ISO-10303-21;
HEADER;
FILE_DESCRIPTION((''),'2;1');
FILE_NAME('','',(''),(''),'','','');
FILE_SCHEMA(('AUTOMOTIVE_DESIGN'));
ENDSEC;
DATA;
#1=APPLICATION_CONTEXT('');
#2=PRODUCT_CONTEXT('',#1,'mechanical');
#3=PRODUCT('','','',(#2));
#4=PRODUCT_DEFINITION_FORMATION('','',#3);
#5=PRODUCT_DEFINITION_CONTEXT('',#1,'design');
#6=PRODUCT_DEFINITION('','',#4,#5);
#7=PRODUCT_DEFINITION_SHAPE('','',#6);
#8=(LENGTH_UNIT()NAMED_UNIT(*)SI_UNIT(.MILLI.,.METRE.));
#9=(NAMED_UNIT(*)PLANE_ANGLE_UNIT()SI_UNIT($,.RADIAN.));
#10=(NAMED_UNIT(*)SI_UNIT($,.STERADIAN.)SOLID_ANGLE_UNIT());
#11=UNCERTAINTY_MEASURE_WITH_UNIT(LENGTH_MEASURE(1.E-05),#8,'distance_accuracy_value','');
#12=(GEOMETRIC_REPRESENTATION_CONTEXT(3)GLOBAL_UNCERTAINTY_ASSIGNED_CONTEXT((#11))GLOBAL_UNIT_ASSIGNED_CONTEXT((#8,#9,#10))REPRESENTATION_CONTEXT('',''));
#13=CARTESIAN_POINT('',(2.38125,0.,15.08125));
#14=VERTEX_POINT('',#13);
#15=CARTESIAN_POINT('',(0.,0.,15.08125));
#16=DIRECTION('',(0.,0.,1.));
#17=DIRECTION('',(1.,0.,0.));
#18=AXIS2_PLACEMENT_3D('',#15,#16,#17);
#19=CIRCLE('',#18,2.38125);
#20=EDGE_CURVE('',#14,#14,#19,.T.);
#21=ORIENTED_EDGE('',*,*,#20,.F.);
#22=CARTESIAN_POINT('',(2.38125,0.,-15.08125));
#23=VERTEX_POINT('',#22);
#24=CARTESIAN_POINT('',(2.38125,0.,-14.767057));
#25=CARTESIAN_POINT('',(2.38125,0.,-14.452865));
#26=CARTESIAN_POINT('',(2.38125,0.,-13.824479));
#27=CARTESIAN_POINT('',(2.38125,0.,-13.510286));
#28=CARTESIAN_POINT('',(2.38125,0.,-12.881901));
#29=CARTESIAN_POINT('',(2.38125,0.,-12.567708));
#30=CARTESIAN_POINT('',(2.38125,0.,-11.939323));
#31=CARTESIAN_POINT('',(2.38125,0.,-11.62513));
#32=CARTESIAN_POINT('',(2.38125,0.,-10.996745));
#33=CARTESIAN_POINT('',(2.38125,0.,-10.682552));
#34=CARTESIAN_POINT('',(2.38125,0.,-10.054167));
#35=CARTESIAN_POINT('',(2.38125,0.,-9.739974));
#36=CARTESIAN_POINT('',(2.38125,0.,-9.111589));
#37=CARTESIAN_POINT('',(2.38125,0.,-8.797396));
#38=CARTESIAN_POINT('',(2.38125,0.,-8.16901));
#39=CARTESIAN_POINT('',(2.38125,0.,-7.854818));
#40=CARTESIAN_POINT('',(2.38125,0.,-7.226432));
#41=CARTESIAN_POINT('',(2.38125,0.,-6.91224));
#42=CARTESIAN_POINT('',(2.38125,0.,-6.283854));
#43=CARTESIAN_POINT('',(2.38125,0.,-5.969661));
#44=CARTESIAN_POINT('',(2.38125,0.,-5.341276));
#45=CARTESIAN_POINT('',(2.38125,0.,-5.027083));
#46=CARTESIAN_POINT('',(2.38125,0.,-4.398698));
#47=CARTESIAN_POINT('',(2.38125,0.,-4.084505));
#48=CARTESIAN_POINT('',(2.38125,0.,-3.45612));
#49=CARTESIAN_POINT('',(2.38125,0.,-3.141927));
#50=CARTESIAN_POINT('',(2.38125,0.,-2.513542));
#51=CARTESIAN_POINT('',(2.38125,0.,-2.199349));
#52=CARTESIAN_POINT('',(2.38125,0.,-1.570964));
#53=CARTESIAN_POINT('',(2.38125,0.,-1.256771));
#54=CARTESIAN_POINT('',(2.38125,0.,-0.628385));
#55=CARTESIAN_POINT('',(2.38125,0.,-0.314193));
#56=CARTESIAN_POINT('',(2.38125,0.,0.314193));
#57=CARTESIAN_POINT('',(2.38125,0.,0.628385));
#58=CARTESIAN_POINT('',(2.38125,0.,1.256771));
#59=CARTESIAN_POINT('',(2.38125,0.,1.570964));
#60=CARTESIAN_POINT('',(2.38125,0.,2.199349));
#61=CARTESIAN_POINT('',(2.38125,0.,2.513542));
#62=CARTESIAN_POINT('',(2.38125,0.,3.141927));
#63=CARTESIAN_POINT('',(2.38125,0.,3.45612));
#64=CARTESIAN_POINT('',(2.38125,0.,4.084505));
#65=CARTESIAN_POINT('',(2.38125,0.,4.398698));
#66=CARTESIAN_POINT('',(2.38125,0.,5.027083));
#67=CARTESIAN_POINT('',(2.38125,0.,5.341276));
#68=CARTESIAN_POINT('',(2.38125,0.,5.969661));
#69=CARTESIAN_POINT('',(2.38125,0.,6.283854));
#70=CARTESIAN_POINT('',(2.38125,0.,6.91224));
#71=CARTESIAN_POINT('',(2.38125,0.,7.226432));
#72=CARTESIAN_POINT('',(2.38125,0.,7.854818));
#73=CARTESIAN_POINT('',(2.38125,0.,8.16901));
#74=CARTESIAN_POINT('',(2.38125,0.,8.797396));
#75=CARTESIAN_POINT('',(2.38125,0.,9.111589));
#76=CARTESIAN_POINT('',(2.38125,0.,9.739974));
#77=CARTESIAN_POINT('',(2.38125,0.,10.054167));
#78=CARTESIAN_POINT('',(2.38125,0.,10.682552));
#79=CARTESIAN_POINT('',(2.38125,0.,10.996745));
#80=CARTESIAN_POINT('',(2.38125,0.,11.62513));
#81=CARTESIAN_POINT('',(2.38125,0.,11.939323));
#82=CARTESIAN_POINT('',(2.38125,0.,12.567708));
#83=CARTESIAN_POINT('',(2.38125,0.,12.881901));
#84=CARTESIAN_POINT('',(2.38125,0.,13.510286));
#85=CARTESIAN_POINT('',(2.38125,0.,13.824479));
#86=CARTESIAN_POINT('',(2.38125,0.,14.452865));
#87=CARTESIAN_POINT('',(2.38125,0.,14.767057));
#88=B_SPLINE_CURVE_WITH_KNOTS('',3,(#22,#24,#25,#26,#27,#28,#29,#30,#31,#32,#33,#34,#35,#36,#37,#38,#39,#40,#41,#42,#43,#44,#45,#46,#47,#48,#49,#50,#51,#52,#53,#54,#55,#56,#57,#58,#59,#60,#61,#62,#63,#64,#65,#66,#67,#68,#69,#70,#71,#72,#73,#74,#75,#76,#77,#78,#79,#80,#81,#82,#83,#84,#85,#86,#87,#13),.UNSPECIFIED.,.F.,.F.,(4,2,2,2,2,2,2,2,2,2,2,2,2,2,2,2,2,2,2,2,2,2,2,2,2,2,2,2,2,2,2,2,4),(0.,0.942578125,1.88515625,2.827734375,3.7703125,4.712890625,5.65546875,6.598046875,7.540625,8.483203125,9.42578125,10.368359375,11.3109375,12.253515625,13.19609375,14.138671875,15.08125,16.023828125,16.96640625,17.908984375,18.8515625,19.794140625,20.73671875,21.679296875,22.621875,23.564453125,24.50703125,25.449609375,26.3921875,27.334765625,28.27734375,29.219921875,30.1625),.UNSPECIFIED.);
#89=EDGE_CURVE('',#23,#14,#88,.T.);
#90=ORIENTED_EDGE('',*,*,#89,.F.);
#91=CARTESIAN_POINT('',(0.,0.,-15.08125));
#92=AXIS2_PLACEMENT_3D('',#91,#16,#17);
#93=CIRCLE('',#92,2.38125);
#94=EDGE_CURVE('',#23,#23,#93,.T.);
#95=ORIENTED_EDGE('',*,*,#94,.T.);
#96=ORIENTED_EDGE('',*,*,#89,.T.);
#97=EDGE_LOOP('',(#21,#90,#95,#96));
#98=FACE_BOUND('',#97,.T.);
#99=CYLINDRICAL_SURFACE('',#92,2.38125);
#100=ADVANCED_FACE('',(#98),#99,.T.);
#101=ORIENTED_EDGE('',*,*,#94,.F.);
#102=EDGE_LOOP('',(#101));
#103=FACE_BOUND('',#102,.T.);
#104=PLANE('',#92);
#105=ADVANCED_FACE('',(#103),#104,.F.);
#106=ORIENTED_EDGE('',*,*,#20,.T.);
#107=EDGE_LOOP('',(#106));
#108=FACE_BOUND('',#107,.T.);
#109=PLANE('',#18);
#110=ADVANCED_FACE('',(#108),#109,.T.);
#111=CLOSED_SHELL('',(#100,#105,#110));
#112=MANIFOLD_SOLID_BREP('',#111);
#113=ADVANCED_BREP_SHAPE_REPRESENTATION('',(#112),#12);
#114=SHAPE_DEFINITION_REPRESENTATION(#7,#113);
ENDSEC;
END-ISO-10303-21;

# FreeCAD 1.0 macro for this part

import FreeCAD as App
import Part
import Sketcher
from FreeCAD import Vector
Q = App.Units.Quantity

doc = App.newDocument("Part")
body = doc.addObject("PartDesign::Body", "Body")

# Sketch on XY plane
sketch1 = body.newObject("Sketcher::SketchObject", "Sketch")
sketch1.AttachmentSupport = (doc.getObject("XY_Plane"), [""])
sketch1.MapMode = "FlatFace"
sketch1.addGeometry(Part.Circle(Vector(0, 0, 0), Vector(0, 0, 1), 2.4), False)
sketch1.addConstraint([
    Sketcher.Constraint("Coincident", 0, 3, -1, 1),
    Sketcher.Constraint("Diameter", 0, Q("0.1875 in")),
])
pad1 = body.newObject("PartDesign::Pad", "Pad")
pad1.Profile = sketch1
pad1.Length = Q("1.1875 in")
pad1.Midplane = True

doc.recompute()
